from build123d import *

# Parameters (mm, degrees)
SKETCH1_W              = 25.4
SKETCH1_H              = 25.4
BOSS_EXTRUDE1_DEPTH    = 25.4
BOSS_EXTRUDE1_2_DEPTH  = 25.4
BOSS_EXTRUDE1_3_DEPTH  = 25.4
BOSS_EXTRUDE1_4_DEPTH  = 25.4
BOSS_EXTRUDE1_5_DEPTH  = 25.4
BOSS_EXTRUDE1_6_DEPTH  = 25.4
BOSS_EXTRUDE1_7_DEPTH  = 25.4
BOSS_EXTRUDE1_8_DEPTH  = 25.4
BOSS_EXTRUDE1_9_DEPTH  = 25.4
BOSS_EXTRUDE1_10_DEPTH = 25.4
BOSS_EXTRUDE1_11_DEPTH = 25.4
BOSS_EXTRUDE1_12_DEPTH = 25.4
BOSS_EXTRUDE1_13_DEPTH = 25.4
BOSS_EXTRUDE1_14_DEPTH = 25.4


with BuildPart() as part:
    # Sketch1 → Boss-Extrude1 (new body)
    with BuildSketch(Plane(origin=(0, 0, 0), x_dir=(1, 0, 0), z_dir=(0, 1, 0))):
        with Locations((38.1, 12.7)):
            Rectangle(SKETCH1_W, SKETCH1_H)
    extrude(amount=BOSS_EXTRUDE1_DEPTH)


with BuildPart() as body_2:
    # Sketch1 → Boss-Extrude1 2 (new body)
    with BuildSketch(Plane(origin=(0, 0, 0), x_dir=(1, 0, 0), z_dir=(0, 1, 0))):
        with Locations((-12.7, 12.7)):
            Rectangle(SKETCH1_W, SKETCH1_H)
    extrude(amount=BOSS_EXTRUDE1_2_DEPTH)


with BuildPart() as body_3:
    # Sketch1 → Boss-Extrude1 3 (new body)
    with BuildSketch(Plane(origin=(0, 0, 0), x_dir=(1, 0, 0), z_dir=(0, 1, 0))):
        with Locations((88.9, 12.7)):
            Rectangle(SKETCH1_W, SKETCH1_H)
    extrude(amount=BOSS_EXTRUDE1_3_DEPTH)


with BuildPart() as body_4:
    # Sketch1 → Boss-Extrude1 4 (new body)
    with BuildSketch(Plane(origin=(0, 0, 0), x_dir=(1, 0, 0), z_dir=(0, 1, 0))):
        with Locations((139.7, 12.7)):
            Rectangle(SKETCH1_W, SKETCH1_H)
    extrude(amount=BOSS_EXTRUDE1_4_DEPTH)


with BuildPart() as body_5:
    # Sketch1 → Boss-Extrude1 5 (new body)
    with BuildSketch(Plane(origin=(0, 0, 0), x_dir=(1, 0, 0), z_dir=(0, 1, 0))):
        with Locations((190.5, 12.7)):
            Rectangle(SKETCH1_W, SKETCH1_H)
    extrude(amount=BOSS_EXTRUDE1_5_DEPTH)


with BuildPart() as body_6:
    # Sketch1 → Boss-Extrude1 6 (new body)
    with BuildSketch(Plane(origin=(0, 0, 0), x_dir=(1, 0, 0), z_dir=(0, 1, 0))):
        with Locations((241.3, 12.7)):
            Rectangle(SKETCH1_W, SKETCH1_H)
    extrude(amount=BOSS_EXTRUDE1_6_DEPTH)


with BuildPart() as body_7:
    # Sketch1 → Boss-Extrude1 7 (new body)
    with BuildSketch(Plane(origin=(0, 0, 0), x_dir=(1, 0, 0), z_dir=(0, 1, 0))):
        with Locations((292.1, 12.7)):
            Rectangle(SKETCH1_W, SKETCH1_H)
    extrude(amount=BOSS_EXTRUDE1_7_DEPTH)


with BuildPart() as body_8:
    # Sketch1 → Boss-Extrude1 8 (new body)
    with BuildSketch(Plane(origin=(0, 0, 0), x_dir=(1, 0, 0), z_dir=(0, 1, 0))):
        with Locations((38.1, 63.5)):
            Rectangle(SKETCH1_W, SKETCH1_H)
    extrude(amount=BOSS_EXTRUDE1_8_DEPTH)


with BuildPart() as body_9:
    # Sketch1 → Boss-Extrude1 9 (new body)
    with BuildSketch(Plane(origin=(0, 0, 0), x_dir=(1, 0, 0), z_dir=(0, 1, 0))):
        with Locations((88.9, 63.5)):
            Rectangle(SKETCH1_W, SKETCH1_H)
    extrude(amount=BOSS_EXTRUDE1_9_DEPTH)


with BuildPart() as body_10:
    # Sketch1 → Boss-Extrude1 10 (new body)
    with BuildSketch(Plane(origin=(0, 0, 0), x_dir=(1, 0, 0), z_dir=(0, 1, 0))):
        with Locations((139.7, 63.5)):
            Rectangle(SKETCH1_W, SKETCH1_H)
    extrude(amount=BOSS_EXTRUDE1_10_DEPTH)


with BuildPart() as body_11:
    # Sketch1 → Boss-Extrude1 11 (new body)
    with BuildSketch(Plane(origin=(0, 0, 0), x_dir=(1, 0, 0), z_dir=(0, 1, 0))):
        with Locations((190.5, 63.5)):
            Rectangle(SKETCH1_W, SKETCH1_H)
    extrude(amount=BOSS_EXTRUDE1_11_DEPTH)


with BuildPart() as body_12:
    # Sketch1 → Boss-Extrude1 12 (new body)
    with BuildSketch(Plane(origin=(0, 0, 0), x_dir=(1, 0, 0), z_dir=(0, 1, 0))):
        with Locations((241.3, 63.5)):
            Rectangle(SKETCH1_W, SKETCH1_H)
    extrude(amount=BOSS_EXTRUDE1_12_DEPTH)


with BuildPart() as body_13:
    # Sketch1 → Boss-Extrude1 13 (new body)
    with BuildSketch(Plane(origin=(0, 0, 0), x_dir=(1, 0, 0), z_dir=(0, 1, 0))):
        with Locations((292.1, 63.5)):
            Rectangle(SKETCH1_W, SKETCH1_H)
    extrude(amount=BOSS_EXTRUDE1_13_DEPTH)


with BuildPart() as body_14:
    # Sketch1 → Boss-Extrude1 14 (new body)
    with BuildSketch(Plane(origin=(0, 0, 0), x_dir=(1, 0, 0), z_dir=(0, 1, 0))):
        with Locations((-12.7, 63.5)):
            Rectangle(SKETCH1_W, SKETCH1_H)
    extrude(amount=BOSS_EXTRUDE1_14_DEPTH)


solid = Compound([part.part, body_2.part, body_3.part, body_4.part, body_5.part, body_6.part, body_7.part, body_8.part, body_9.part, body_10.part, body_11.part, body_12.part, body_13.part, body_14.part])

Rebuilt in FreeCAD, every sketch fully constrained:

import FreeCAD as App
import Part
import Sketcher
Q = App.Units.Quantity


def add_polygon(sketch, points):
    """Adds a closed chain of lines whose ends are joined by coincident constraints."""
    first, n = sketch.GeometryCount, len(points)
    for a, b in zip(points, points[1:] + points[:1]):
        sketch.addGeometry(Part.LineSegment(App.Vector(*a, 0), App.Vector(*b, 0)), False)
    for i in range(n):
        sketch.addConstraint(Sketcher.Constraint("Coincident", first + i, 2, first + (i + 1) % n, 1))

doc = App.newDocument("Part")
body = doc.addObject("PartDesign::Body", "Body")

# Sketch on XZ plane
sketch1 = body.newObject("Sketcher::SketchObject", "Sketch")
sketch1.AttachmentSupport = (doc.getObject("XZ_Plane"), [""])
sketch1.MapMode = "FlatFace"
add_polygon(sketch1, [(25.4, -25.4), (25.4, 0), (50.8, 0), (50.8, -25.4)])  # lines 0-3
sketch1.addConstraint([
    Sketcher.Constraint("Vertical", 0),
    Sketcher.Constraint("Horizontal", 1),
    Sketcher.Constraint("Vertical", 2),
    Sketcher.Constraint("Horizontal", 3),
    Sketcher.Constraint("PointOnObject", 0, 2, -1),
    Sketcher.Constraint("Equal", 3, 0),
    Sketcher.Constraint("DistanceX", 1, 1, 1, 2, Q("1 in")),
    Sketcher.Constraint("DistanceX", -1, 1, 0, 2, Q("1 in")),
])
pad1 = body.newObject("PartDesign::Pad", "Pad")
pad1.Profile = sketch1
pad1.Length = Q("1 in")
pad1.Reversed = True
body2 = doc.addObject("PartDesign::Body", "Body001")

# Sketch on XZ plane
sketch2 = body2.newObject("Sketcher::SketchObject", "Sketch001")
sketch2.AttachmentSupport = (doc.getObject("XZ_Plane001"), [""])
sketch2.MapMode = "FlatFace"
add_polygon(sketch2, [(-25.4, -25.4), (-25.4, 0), (0, 0), (0, -25.4)])  # lines 0-3
sketch2.addConstraint([
    Sketcher.Constraint("Vertical", 0),
    Sketcher.Constraint("Horizontal", 1),
    Sketcher.Constraint("Vertical", 2),
    Sketcher.Constraint("Horizontal", 3),
    Sketcher.Constraint("Coincident", 1, 2, -1, 1),
    Sketcher.Constraint("Equal", 3, 0),
    Sketcher.Constraint("DistanceX", 1, 1, 1, 2, Q("1 in")),
])
pad2 = body2.newObject("PartDesign::Pad", "Pad001")
pad2.Profile = sketch2
pad2.Length = Q("1 in")
pad2.Reversed = True
body3 = doc.addObject("PartDesign::Body", "Body002")

# Sketch on XZ plane
sketch3 = body3.newObject("Sketcher::SketchObject", "Sketch002")
sketch3.AttachmentSupport = (doc.getObject("XZ_Plane002"), [""])
sketch3.MapMode = "FlatFace"
add_polygon(sketch3, [(76.2, -25.4), (76.2, 0), (101.6, 0), (101.6, -25.4)])  # lines 0-3
sketch3.addConstraint([
    Sketcher.Constraint("Vertical", 0),
    Sketcher.Constraint("Horizontal", 1),
    Sketcher.Constraint("Vertical", 2),
    Sketcher.Constraint("Horizontal", 3),
    Sketcher.Constraint("PointOnObject", 0, 2, -1),
    Sketcher.Constraint("Equal", 3, 0),
    Sketcher.Constraint("DistanceX", 1, 1, 1, 2, Q("1 in")),
    Sketcher.Constraint("DistanceX", -1, 1, 0, 2, Q("3 in")),
])
pad3 = body3.newObject("PartDesign::Pad", "Pad002")
pad3.Profile = sketch3
pad3.Length = Q("1 in")
pad3.Reversed = True
body4 = doc.addObject("PartDesign::Body", "Body003")

# Sketch on XZ plane
sketch4 = body4.newObject("Sketcher::SketchObject", "Sketch003")
sketch4.AttachmentSupport = (doc.getObject("XZ_Plane003"), [""])
sketch4.MapMode = "FlatFace"
add_polygon(sketch4, [(127, -25.4), (127, 0), (152.4, 0), (152.4, -25.4)])  # lines 0-3
sketch4.addConstraint([
    Sketcher.Constraint("Vertical", 0),
    Sketcher.Constraint("Horizontal", 1),
    Sketcher.Constraint("Vertical", 2),
    Sketcher.Constraint("Horizontal", 3),
    Sketcher.Constraint("PointOnObject", 0, 2, -1),
    Sketcher.Constraint("Equal", 3, 0),
    Sketcher.Constraint("DistanceX", 1, 1, 1, 2, Q("1 in")),
    Sketcher.Constraint("DistanceX", -1, 1, 0, 2, Q("5 in")),
])
pad4 = body4.newObject("PartDesign::Pad", "Pad003")
pad4.Profile = sketch4
pad4.Length = Q("1 in")
pad4.Reversed = True
body5 = doc.addObject("PartDesign::Body", "Body004")

# Sketch on XZ plane
sketch5 = body5.newObject("Sketcher::SketchObject", "Sketch004")
sketch5.AttachmentSupport = (doc.getObject("XZ_Plane004"), [""])
sketch5.MapMode = "FlatFace"
add_polygon(sketch5, [(177.8, -25.4), (177.8, 0), (203.2, 0), (203.2, -25.4)])  # lines 0-3
sketch5.addConstraint([
    Sketcher.Constraint("Vertical", 0),
    Sketcher.Constraint("Horizontal", 1),
    Sketcher.Constraint("Vertical", 2),
    Sketcher.Constraint("Horizontal", 3),
    Sketcher.Constraint("PointOnObject", 0, 2, -1),
    Sketcher.Constraint("Equal", 3, 0),
    Sketcher.Constraint("DistanceX", 1, 1, 1, 2, Q("1 in")),
    Sketcher.Constraint("DistanceX", -1, 1, 0, 2, Q("7 in")),
])
pad5 = body5.newObject("PartDesign::Pad", "Pad004")
pad5.Profile = sketch5
pad5.Length = Q("1 in")
pad5.Reversed = True
body6 = doc.addObject("PartDesign::Body", "Body005")

# Sketch on XZ plane
sketch6 = body6.newObject("Sketcher::SketchObject", "Sketch005")
sketch6.AttachmentSupport = (doc.getObject("XZ_Plane005"), [""])
sketch6.MapMode = "FlatFace"
add_polygon(sketch6, [(228.6, -25.4), (228.6, 0), (254, 0), (254, -25.4)])  # lines 0-3
sketch6.addConstraint([
    Sketcher.Constraint("Vertical", 0),
    Sketcher.Constraint("Horizontal", 1),
    Sketcher.Constraint("Vertical", 2),
    Sketcher.Constraint("Horizontal", 3),
    Sketcher.Constraint("PointOnObject", 0, 2, -1),
    Sketcher.Constraint("Equal", 3, 0),
    Sketcher.Constraint("DistanceX", 1, 1, 1, 2, Q("1 in")),
    Sketcher.Constraint("DistanceX", -1, 1, 0, 2, Q("9 in")),
])
pad6 = body6.newObject("PartDesign::Pad", "Pad005")
pad6.Profile = sketch6
pad6.Length = Q("1 in")
pad6.Reversed = True
body7 = doc.addObject("PartDesign::Body", "Body006")

# Sketch on XZ plane
sketch7 = body7.newObject("Sketcher::SketchObject", "Sketch006")
sketch7.AttachmentSupport = (doc.getObject("XZ_Plane006"), [""])
sketch7.MapMode = "FlatFace"
add_polygon(sketch7, [(279.4, -25.4), (279.4, 0), (304.8, 0), (304.8, -25.4)])  # lines 0-3
sketch7.addConstraint([
    Sketcher.Constraint("Vertical", 0),
    Sketcher.Constraint("Horizontal", 1),
    Sketcher.Constraint("Vertical", 2),
    Sketcher.Constraint("Horizontal", 3),
    Sketcher.Constraint("PointOnObject", 0, 2, -1),
    Sketcher.Constraint("Equal", 3, 0),
    Sketcher.Constraint("DistanceX", 1, 1, 1, 2, Q("1 in")),
    Sketcher.Constraint("DistanceX", -1, 1, 0, 2, Q("11 in")),
])
pad7 = body7.newObject("PartDesign::Pad", "Pad006")
pad7.Profile = sketch7
pad7.Length = Q("1 in")
pad7.Reversed = True
body8 = doc.addObject("PartDesign::Body", "Body007")

# Sketch on XZ plane
sketch8 = body8.newObject("Sketcher::SketchObject", "Sketch007")
sketch8.AttachmentSupport = (doc.getObject("XZ_Plane007"), [""])
sketch8.MapMode = "FlatFace"
add_polygon(sketch8, [(25.4, -76.2), (25.4, -50.8), (50.8, -50.8), (50.8, -76.2)])  # lines 0-3
sketch8.addConstraint([
    Sketcher.Constraint("Vertical", 0),
    Sketcher.Constraint("Horizontal", 1),
    Sketcher.Constraint("Vertical", 2),
    Sketcher.Constraint("Horizontal", 3),
    Sketcher.Constraint("Equal", 3, 0),
    Sketcher.Constraint("DistanceX", 1, 1, 1, 2, Q("1 in")),
    Sketcher.Constraint("DistanceX", -1, 1, 0, 2, Q("1 in")),
    Sketcher.Constraint("DistanceY", 0, 2, -1, 1, Q("2 in")),
])
pad8 = body8.newObject("PartDesign::Pad", "Pad007")
pad8.Profile = sketch8
pad8.Length = Q("1 in")
pad8.Reversed = True
body9 = doc.addObject("PartDesign::Body", "Body008")

# Sketch on XZ plane
sketch9 = body9.newObject("Sketcher::SketchObject", "Sketch008")
sketch9.AttachmentSupport = (doc.getObject("XZ_Plane008"), [""])
sketch9.MapMode = "FlatFace"
add_polygon(sketch9, [(76.2, -76.2), (76.2, -50.8), (101.6, -50.8), (101.6, -76.2)])  # lines 0-3
sketch9.addConstraint([
    Sketcher.Constraint("Vertical", 0),
    Sketcher.Constraint("Horizontal", 1),
    Sketcher.Constraint("Vertical", 2),
    Sketcher.Constraint("Horizontal", 3),
    Sketcher.Constraint("Equal", 3, 0),
    Sketcher.Constraint("DistanceX", 1, 1, 1, 2, Q("1 in")),
    Sketcher.Constraint("DistanceX", -1, 1, 0, 2, Q("3 in")),
    Sketcher.Constraint("DistanceY", 0, 2, -1, 1, Q("2 in")),
])
pad9 = body9.newObject("PartDesign::Pad", "Pad008")
pad9.Profile = sketch9
pad9.Length = Q("1 in")
pad9.Reversed = True
body10 = doc.addObject("PartDesign::Body", "Body009")

# Sketch on XZ plane
sketch10 = body10.newObject("Sketcher::SketchObject", "Sketch009")
sketch10.AttachmentSupport = (doc.getObject("XZ_Plane009"), [""])
sketch10.MapMode = "FlatFace"
add_polygon(sketch10, [(127, -76.2), (127, -50.8), (152.4, -50.8), (152.4, -76.2)])  # lines 0-3
sketch10.addConstraint([
    Sketcher.Constraint("Vertical", 0),
    Sketcher.Constraint("Horizontal", 1),
    Sketcher.Constraint("Vertical", 2),
    Sketcher.Constraint("Horizontal", 3),
    Sketcher.Constraint("Equal", 3, 0),
    Sketcher.Constraint("DistanceX", 1, 1, 1, 2, Q("1 in")),
    Sketcher.Constraint("DistanceX", -1, 1, 0, 2, Q("5 in")),
    Sketcher.Constraint("DistanceY", 0, 2, -1, 1, Q("2 in")),
])
pad10 = body10.newObject("PartDesign::Pad", "Pad009")
pad10.Profile = sketch10
pad10.Length = Q("1 in")
pad10.Reversed = True
body11 = doc.addObject("PartDesign::Body", "Body010")

# Sketch on XZ plane
sketch11 = body11.newObject("Sketcher::SketchObject", "Sketch010")
sketch11.AttachmentSupport = (doc.getObject("XZ_Plane010"), [""])
sketch11.MapMode = "FlatFace"
add_polygon(sketch11, [(177.8, -76.2), (177.8, -50.8), (203.2, -50.8), (203.2, -76.2)])  # lines 0-3
sketch11.addConstraint([
    Sketcher.Constraint("Vertical", 0),
    Sketcher.Constraint("Horizontal", 1),
    Sketcher.Constraint("Vertical", 2),
    Sketcher.Constraint("Horizontal", 3),
    Sketcher.Constraint("Equal", 3, 0),
    Sketcher.Constraint("DistanceX", 1, 1, 1, 2, Q("1 in")),
    Sketcher.Constraint("DistanceX", -1, 1, 0, 2, Q("7 in")),
    Sketcher.Constraint("DistanceY", 0, 2, -1, 1, Q("2 in")),
])
pad11 = body11.newObject("PartDesign::Pad", "Pad010")
pad11.Profile = sketch11
pad11.Length = Q("1 in")
pad11.Reversed = True
body12 = doc.addObject("PartDesign::Body", "Body011")

# Sketch on XZ plane
sketch12 = body12.newObject("Sketcher::SketchObject", "Sketch011")
sketch12.AttachmentSupport = (doc.getObject("XZ_Plane011"), [""])
sketch12.MapMode = "FlatFace"
add_polygon(sketch12, [(228.6, -76.2), (228.6, -50.8), (254, -50.8), (254, -76.2)])  # lines 0-3
sketch12.addConstraint([
    Sketcher.Constraint("Vertical", 0),
    Sketcher.Constraint("Horizontal", 1),
    Sketcher.Constraint("Vertical", 2),
    Sketcher.Constraint("Horizontal", 3),
    Sketcher.Constraint("Equal", 3, 0),
    Sketcher.Constraint("DistanceX", 1, 1, 1, 2, Q("1 in")),
    Sketcher.Constraint("DistanceX", -1, 1, 0, 2, Q("9 in")),
    Sketcher.Constraint("DistanceY", 0, 2, -1, 1, Q("2 in")),
])
pad12 = body12.newObject("PartDesign::Pad", "Pad011")
pad12.Profile = sketch12
pad12.Length = Q("1 in")
pad12.Reversed = True
body13 = doc.addObject("PartDesign::Body", "Body012")

# Sketch on XZ plane
sketch13 = body13.newObject("Sketcher::SketchObject", "Sketch012")
sketch13.AttachmentSupport = (doc.getObject("XZ_Plane012"), [""])
sketch13.MapMode = "FlatFace"
add_polygon(sketch13, [(279.4, -76.2), (279.4, -50.8), (304.8, -50.8), (304.8, -76.2)])  # lines 0-3
sketch13.addConstraint([
    Sketcher.Constraint("Vertical", 0),
    Sketcher.Constraint("Horizontal", 1),
    Sketcher.Constraint("Vertical", 2),
    Sketcher.Constraint("Horizontal", 3),
    Sketcher.Constraint("Equal", 3, 0),
    Sketcher.Constraint("DistanceX", 1, 1, 1, 2, Q("1 in")),
    Sketcher.Constraint("DistanceX", -1, 1, 0, 2, Q("11 in")),
    Sketcher.Constraint("DistanceY", 0, 2, -1, 1, Q("2 in")),
])
pad13 = body13.newObject("PartDesign::Pad", "Pad012")
pad13.Profile = sketch13
pad13.Length = Q("1 in")
pad13.Reversed = True
body14 = doc.addObject("PartDesign::Body", "Body013")

# Sketch on XZ plane
sketch14 = body14.newObject("Sketcher::SketchObject", "Sketch013")
sketch14.AttachmentSupport = (doc.getObject("XZ_Plane013"), [""])
sketch14.MapMode = "FlatFace"
add_polygon(sketch14, [(-25.4, -76.2), (-25.4, -50.8), (0, -50.8), (0, -76.2)])  # lines 0-3
sketch14.addConstraint([
    Sketcher.Constraint("Vertical", 0),
    Sketcher.Constraint("Horizontal", 1),
    Sketcher.Constraint("Vertical", 2),
    Sketcher.Constraint("Horizontal", 3),
    Sketcher.Constraint("PointOnObject", 1, 2, -2),
    Sketcher.Constraint("Equal", 3, 0),
    Sketcher.Constraint("DistanceX", 1, 1, 1, 2, Q("1 in")),
    Sketcher.Constraint("DistanceY", 0, 2, -1, 1, Q("2 in")),
])
pad14 = body14.newObject("PartDesign::Pad", "Pad013")
pad14.Profile = sketch14
pad14.Length = Q("1 in")
pad14.Reversed = True

doc.recompute()
